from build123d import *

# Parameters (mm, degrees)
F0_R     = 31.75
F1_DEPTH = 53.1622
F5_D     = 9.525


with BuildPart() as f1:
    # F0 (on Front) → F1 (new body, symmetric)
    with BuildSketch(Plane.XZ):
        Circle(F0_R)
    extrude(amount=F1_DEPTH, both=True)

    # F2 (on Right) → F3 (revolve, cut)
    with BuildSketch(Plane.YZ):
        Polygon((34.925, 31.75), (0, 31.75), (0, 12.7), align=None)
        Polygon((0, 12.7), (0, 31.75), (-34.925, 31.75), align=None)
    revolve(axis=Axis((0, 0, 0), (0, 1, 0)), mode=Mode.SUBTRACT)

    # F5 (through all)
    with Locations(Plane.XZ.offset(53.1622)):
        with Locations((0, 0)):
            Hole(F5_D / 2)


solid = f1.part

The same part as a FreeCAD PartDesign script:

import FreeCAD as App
import Part
import Sketcher

V = App.Vector
Q = App.Units.Quantity


def add_polygon(sketch, points):
    """Adds a closed chain of lines whose ends are joined by coincident constraints."""
    first, n = sketch.GeometryCount, len(points)
    for a, b in zip(points, points[1:] + points[:1]):
        sketch.addGeometry(Part.LineSegment(App.Vector(*a, 0), App.Vector(*b, 0)), False)
    for i in range(n):
        sketch.addConstraint(Sketcher.Constraint("Coincident", first + i, 2, first + (i + 1) % n, 1))

doc = App.newDocument("Part")
body = doc.addObject("PartDesign::Body", "Body")

sketch1 = body.newObject("Sketcher::SketchObject", "Sketch")
sketch1.AttachmentSupport = (doc.getObject("XZ_Plane"), [""])
sketch1.MapMode = "FlatFace"
sketch1.addGeometry(Part.Circle(V(0, 0, 0), V(0, 0, 1), 31.75), False)
sketch1.addConstraint(Sketcher.Constraint("Coincident", 0, 3, -1, 1))
sketch1.addConstraint(Sketcher.Constraint("Diameter", 0, Q("2.5 in")))
pad1 = body.newObject("PartDesign::Pad", "Pad")
pad1.Profile = sketch1
pad1.Length = Q("4.186 in")
pad1.Midplane = True

sketch2 = body.newObject("Sketcher::SketchObject", "Sketch001")
sketch2.AttachmentSupport = (doc.getObject("YZ_Plane"), [""])
sketch2.MapMode = "FlatFace"
add_polygon(sketch2, [(34.925, 31.75), (-34.925, 31.75), (0, 12.7)])
sketch2.addConstraint(Sketcher.Constraint("Horizontal", 0))
sketch2.addConstraint(Sketcher.Constraint("PointOnObject", 1, 2, -2))
sketch2.addConstraint(Sketcher.Constraint("Equal", 1, 2))
sketch2.addConstraint(Sketcher.Constraint("DistanceX", 0, 2, 0, 1, Q("2.75 in")))
sketch2.addConstraint(Sketcher.Constraint("DistanceY", -1, 1, 1, 2, Q("0.5 in")))
sketch2.addConstraint(Sketcher.Constraint("DistanceY", -1, 1, 0, 2, Q("1.25 in")))
groove = body.newObject("PartDesign::Groove", "Groove")
groove.Profile = sketch2
groove.ReferenceAxis = (sketch2, ["H_Axis"])
groove.Angle = 360

sketch3 = body.newObject("Sketcher::SketchObject", "Sketch002")
sketch3.AttachmentSupport = (doc.getObject("XZ_Plane"), [""])
sketch3.MapMode = "FlatFace"
sketch3.AttachmentOffset = App.Placement(V(0, 0, 2.093 * 25.4), App.Rotation())
sketch3.addGeometry(Part.Circle(V(0, 0, 0), V(0, 0, 1), 4.7625), False)
sketch3.addConstraint(Sketcher.Constraint("Coincident", 0, 3, -1, 1))
sketch3.addConstraint(Sketcher.Constraint("Diameter", 0, Q("0.375 in")))
doc.recompute()
hole = body.newObject("PartDesign::Hole", "Hole")
hole.Profile = sketch3
hole.ThreadType = "None"
hole.Diameter = Q("0.375 in")
hole.DepthType = "ThroughAll"

doc.recompute()
